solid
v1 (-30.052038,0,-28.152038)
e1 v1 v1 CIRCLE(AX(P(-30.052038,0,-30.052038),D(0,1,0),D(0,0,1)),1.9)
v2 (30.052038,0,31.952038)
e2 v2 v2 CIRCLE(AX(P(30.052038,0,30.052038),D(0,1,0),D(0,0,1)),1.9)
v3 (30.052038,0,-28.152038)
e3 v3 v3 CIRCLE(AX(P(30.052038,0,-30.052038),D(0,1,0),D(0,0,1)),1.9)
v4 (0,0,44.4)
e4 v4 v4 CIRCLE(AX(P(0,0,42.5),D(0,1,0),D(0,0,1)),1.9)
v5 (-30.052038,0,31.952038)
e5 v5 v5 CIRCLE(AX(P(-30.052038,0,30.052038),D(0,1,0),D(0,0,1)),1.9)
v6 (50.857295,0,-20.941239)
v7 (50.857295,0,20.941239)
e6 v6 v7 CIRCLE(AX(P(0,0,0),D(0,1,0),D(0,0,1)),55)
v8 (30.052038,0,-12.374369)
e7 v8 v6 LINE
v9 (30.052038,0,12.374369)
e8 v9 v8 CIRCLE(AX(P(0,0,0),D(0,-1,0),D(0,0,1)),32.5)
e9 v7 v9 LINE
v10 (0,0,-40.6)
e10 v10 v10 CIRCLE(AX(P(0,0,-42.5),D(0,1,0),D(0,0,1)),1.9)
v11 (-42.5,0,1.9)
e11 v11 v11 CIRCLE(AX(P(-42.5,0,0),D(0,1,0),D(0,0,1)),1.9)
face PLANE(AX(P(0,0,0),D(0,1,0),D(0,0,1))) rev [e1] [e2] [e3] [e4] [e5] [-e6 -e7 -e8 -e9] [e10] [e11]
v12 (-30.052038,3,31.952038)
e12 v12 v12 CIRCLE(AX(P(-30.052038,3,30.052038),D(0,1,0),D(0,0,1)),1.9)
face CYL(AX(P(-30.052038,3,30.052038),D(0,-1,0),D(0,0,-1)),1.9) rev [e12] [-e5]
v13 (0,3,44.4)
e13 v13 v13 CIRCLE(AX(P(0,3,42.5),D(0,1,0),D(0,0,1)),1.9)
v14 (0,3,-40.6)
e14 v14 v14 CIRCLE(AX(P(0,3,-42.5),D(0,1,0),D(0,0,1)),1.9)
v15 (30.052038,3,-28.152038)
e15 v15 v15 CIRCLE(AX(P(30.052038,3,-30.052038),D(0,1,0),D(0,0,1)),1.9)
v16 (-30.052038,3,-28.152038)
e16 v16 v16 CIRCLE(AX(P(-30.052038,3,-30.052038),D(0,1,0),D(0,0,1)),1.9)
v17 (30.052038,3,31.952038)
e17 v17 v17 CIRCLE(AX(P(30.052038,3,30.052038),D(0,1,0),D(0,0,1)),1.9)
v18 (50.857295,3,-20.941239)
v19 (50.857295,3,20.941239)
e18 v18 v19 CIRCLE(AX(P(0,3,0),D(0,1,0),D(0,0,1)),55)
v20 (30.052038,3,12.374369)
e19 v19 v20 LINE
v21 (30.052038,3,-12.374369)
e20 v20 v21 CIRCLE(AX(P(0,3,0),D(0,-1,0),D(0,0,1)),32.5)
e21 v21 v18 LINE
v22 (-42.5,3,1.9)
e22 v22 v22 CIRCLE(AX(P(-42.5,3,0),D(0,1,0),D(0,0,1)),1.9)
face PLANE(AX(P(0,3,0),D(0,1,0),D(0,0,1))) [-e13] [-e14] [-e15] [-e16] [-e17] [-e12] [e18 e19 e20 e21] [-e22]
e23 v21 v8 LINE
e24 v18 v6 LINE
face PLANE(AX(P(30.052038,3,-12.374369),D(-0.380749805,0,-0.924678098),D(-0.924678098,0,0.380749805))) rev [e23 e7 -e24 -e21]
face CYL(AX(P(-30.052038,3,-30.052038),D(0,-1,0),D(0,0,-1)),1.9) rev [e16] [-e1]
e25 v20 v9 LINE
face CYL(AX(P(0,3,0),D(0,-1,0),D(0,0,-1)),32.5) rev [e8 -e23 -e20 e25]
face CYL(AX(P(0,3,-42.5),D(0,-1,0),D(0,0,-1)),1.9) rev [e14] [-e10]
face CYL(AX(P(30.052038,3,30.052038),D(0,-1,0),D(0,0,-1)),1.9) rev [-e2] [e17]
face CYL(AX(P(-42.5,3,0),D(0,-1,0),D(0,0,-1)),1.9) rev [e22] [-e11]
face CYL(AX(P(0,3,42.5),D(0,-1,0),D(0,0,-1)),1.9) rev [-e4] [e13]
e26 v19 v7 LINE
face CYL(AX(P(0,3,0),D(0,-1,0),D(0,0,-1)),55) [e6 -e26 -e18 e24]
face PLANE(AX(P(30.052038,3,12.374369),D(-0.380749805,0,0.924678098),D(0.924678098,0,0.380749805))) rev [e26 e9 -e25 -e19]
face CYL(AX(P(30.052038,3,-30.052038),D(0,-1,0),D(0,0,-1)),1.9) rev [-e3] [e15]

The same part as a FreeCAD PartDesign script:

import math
import FreeCAD as App
import Part
import Sketcher
from FreeCAD import Vector
Q = App.Units.Quantity

doc = App.newDocument("Part")
params = doc.addObject("Spreadsheet::Sheet", "Params")
for row, (alias, value) in enumerate([
    ("sketch1_radius", "55 mm"),
    ("sketch1_diameter", "3.8 mm"),
    ("sketch1_radius2", "32.5 mm"),
    ("pad1_length", "3 mm"),
], start=1):
    params.set(f"A{row}", alias)
    params.set(f"B{row}", "=" + value)
    params.setAlias(f"B{row}", alias)

body = doc.addObject("PartDesign::Body", "Body")

# Sketch on XZ plane
sketch1 = body.newObject("Sketcher::SketchObject", "Sketch")
sketch1.AttachmentSupport = (doc.getObject("XZ_Plane"), [""])
sketch1.MapMode = "FlatFace"
sketch1.addGeometry(Part.LineSegment(Vector(30.1, -12.4, 0), Vector(50.9, -20.9, 0)), False)
sketch1.addGeometry(Part.ArcOfCircle(Part.Circle(Vector(0, 0, 0), Vector(0, 0, 1), 55), math.radians(22), math.radians(338)), False)
sketch1.addGeometry(Part.LineSegment(Vector(50.9, 20.9, 0), Vector(30.1, 12.4, 0)), False)
sketch1.addGeometry(Part.ArcOfCircle(Part.Circle(Vector(0, 0, 0), Vector(0, 0, 1), 32.5), math.radians(22), math.radians(338)), False)
sketch1.addGeometry(Part.Circle(Vector(-30.1, 30.1, 0), Vector(0, 0, 1), 1.9), False)
sketch1.addGeometry(Part.Circle(Vector(0, 42.5, 0), Vector(0, 0, 1), 1.9), False)
sketch1.addGeometry(Part.Circle(Vector(30.1, 30.1, 0), Vector(0, 0, 1), 1.9), False)
sketch1.addGeometry(Part.Circle(Vector(-42.5, 0, 0), Vector(0, 0, 1), 1.9), False)
sketch1.addGeometry(Part.Circle(Vector(-30.1, -30.1, 0), Vector(0, 0, 1), 1.9), False)
sketch1.addGeometry(Part.Circle(Vector(0, -42.5, 0), Vector(0, 0, 1), 1.9), False)
sketch1.addGeometry(Part.Circle(Vector(30.1, -30.1, 0), Vector(0, 0, 1), 1.9), False)
sketch1.addConstraint(Sketcher.Constraint("Coincident", 0, 2, 1, 2))
sketch1.addConstraint(Sketcher.Constraint("Coincident", 1, 1, 2, 1))
sketch1.addConstraint(Sketcher.Constraint("Coincident", 2, 2, 3, 1))
sketch1.addConstraint(Sketcher.Constraint("Coincident", 3, 2, 0, 1))
sketch1.addConstraint(Sketcher.Constraint("Coincident", 1, 3, -1, 1))
sketch1.addConstraint(Sketcher.Constraint("Coincident", 3, 3, -1, 1))
sketch1.addConstraint(Sketcher.Constraint("Equal", 4, 5))
sketch1.addConstraint(Sketcher.Constraint("Equal", 5, 6))
sketch1.addConstraint(Sketcher.Constraint("Equal", 6, 7))
sketch1.addConstraint(Sketcher.Constraint("Equal", 7, 8))
sketch1.addConstraint(Sketcher.Constraint("Equal", 8, 9))
sketch1.addConstraint(Sketcher.Constraint("Equal", 9, 10))
sketch1.addConstraint(Sketcher.Constraint("Symmetric", 6, 3, 8, 3, -1, 1))
sketch1.addConstraint(Sketcher.Constraint("Symmetric", 5, 3, 9, 3, -1, 1))
sketch1.addConstraint(Sketcher.Constraint("Symmetric", 4, 3, 10, 3, -1, 1))
sketch1.addConstraint(Sketcher.Constraint("Symmetric", 4, 3, 6, 3, -2))
sketch1.addConstraint(Sketcher.Constraint("PointOnObject", 5, 3, -2))
sketch1.addConstraint(Sketcher.Constraint("PointOnObject", 7, 3, -1))
sketch1.addConstraint(Sketcher.Constraint("Vertical", 0, 2, 1, 1))
sketch1.addConstraint(Sketcher.Constraint("Vertical", 10, 3, 2, 2))
sketch1.addConstraint(Sketcher.Constraint("Vertical", 2, 2, 3, 2))
sketch1.addConstraint(Sketcher.Constraint("Radius", 1, Q("55 mm")))
sketch1.addConstraint(Sketcher.Constraint("Diameter", 4, Q("3.8 mm")))
sketch1.addConstraint(Sketcher.Constraint("Radius", 3, Q("32.5 mm")))
sketch1.addConstraint(Sketcher.Constraint("DistanceY", -1, 1, 5, 3, Q("42.5 mm")))
sketch1.addConstraint(Sketcher.Constraint("DistanceX", 7, 3, -1, 1, Q("42.5 mm")))
sketch1.addConstraint(Sketcher.Constraint("DistanceY", 10, 3, 0, 2, Q("9.110799 mm")))
sketch1.addConstraint(Sketcher.Constraint("DistanceX", 4, 3, -1, 1, Q("30.052038 mm")))
sketch1.addConstraint(Sketcher.Constraint("DistanceY", -1, 1, 4, 3, Q("30.052038 mm")))
sketch1.setExpression("Constraints[21]", "Params.sketch1_radius")
sketch1.setExpression("Constraints[22]", "Params.sketch1_diameter")
sketch1.setExpression("Constraints[23]", "Params.sketch1_radius2")
pad1 = body.newObject("PartDesign::Pad", "Pad")
pad1.Profile = sketch1
pad1.setExpression("Length", "Params.pad1_length")
pad1.Reversed = True

doc.recompute()
